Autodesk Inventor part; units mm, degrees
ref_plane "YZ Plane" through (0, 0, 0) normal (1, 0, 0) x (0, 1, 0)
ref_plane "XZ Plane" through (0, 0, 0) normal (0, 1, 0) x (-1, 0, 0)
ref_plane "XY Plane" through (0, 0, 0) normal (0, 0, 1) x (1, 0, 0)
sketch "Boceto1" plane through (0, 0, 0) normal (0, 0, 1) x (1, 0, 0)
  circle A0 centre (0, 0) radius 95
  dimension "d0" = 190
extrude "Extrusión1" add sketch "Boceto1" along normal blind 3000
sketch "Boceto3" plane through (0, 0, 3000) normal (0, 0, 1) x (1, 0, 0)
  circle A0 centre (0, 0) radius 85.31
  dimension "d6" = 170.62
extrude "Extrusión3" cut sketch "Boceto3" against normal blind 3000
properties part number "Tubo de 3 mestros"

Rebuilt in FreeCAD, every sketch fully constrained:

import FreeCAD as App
import Part
import Sketcher

V = App.Vector
Q = App.Units.Quantity

doc = App.newDocument("Part")
body = doc.addObject("PartDesign::Body", "Body")

# Sketch on XY plane
sketch1 = body.newObject("Sketcher::SketchObject", "Sketch")
sketch1.AttachmentSupport = (doc.getObject("XY_Plane"), [""])
sketch1.MapMode = "FlatFace"
sketch1.addGeometry(Part.Circle(V(0, 0, 0), V(0, 0, 1), 95), False)
sketch1.addConstraint([
    Sketcher.Constraint("Coincident", 0, 3, -1, 1),
    Sketcher.Constraint("Diameter", 0, Q("190 mm")),
])
pad1 = body.newObject("PartDesign::Pad", "Pad")
pad1.Profile = sketch1
pad1.Length = 3000

# Sketch on XY plane
sketch2 = body.newObject("Sketcher::SketchObject", "Sketch001")
sketch2.AttachmentSupport = (doc.getObject("XY_Plane"), [""])
sketch2.MapMode = "FlatFace"
sketch2.AttachmentOffset = App.Placement(V(0, 0, 3000), App.Rotation())
sketch2.addGeometry(Part.Circle(V(0, 0, 0), V(0, 0, 1), 85), False)
sketch2.addConstraint([
    Sketcher.Constraint("Coincident", 0, 3, -1, 1),
    Sketcher.Constraint("Diameter", 0, Q("170.62 mm")),
])
pocket1 = body.newObject("PartDesign::Pocket", "Pocket")
pocket1.Profile = sketch2
pocket1.Length = 3000

doc.recompute()
